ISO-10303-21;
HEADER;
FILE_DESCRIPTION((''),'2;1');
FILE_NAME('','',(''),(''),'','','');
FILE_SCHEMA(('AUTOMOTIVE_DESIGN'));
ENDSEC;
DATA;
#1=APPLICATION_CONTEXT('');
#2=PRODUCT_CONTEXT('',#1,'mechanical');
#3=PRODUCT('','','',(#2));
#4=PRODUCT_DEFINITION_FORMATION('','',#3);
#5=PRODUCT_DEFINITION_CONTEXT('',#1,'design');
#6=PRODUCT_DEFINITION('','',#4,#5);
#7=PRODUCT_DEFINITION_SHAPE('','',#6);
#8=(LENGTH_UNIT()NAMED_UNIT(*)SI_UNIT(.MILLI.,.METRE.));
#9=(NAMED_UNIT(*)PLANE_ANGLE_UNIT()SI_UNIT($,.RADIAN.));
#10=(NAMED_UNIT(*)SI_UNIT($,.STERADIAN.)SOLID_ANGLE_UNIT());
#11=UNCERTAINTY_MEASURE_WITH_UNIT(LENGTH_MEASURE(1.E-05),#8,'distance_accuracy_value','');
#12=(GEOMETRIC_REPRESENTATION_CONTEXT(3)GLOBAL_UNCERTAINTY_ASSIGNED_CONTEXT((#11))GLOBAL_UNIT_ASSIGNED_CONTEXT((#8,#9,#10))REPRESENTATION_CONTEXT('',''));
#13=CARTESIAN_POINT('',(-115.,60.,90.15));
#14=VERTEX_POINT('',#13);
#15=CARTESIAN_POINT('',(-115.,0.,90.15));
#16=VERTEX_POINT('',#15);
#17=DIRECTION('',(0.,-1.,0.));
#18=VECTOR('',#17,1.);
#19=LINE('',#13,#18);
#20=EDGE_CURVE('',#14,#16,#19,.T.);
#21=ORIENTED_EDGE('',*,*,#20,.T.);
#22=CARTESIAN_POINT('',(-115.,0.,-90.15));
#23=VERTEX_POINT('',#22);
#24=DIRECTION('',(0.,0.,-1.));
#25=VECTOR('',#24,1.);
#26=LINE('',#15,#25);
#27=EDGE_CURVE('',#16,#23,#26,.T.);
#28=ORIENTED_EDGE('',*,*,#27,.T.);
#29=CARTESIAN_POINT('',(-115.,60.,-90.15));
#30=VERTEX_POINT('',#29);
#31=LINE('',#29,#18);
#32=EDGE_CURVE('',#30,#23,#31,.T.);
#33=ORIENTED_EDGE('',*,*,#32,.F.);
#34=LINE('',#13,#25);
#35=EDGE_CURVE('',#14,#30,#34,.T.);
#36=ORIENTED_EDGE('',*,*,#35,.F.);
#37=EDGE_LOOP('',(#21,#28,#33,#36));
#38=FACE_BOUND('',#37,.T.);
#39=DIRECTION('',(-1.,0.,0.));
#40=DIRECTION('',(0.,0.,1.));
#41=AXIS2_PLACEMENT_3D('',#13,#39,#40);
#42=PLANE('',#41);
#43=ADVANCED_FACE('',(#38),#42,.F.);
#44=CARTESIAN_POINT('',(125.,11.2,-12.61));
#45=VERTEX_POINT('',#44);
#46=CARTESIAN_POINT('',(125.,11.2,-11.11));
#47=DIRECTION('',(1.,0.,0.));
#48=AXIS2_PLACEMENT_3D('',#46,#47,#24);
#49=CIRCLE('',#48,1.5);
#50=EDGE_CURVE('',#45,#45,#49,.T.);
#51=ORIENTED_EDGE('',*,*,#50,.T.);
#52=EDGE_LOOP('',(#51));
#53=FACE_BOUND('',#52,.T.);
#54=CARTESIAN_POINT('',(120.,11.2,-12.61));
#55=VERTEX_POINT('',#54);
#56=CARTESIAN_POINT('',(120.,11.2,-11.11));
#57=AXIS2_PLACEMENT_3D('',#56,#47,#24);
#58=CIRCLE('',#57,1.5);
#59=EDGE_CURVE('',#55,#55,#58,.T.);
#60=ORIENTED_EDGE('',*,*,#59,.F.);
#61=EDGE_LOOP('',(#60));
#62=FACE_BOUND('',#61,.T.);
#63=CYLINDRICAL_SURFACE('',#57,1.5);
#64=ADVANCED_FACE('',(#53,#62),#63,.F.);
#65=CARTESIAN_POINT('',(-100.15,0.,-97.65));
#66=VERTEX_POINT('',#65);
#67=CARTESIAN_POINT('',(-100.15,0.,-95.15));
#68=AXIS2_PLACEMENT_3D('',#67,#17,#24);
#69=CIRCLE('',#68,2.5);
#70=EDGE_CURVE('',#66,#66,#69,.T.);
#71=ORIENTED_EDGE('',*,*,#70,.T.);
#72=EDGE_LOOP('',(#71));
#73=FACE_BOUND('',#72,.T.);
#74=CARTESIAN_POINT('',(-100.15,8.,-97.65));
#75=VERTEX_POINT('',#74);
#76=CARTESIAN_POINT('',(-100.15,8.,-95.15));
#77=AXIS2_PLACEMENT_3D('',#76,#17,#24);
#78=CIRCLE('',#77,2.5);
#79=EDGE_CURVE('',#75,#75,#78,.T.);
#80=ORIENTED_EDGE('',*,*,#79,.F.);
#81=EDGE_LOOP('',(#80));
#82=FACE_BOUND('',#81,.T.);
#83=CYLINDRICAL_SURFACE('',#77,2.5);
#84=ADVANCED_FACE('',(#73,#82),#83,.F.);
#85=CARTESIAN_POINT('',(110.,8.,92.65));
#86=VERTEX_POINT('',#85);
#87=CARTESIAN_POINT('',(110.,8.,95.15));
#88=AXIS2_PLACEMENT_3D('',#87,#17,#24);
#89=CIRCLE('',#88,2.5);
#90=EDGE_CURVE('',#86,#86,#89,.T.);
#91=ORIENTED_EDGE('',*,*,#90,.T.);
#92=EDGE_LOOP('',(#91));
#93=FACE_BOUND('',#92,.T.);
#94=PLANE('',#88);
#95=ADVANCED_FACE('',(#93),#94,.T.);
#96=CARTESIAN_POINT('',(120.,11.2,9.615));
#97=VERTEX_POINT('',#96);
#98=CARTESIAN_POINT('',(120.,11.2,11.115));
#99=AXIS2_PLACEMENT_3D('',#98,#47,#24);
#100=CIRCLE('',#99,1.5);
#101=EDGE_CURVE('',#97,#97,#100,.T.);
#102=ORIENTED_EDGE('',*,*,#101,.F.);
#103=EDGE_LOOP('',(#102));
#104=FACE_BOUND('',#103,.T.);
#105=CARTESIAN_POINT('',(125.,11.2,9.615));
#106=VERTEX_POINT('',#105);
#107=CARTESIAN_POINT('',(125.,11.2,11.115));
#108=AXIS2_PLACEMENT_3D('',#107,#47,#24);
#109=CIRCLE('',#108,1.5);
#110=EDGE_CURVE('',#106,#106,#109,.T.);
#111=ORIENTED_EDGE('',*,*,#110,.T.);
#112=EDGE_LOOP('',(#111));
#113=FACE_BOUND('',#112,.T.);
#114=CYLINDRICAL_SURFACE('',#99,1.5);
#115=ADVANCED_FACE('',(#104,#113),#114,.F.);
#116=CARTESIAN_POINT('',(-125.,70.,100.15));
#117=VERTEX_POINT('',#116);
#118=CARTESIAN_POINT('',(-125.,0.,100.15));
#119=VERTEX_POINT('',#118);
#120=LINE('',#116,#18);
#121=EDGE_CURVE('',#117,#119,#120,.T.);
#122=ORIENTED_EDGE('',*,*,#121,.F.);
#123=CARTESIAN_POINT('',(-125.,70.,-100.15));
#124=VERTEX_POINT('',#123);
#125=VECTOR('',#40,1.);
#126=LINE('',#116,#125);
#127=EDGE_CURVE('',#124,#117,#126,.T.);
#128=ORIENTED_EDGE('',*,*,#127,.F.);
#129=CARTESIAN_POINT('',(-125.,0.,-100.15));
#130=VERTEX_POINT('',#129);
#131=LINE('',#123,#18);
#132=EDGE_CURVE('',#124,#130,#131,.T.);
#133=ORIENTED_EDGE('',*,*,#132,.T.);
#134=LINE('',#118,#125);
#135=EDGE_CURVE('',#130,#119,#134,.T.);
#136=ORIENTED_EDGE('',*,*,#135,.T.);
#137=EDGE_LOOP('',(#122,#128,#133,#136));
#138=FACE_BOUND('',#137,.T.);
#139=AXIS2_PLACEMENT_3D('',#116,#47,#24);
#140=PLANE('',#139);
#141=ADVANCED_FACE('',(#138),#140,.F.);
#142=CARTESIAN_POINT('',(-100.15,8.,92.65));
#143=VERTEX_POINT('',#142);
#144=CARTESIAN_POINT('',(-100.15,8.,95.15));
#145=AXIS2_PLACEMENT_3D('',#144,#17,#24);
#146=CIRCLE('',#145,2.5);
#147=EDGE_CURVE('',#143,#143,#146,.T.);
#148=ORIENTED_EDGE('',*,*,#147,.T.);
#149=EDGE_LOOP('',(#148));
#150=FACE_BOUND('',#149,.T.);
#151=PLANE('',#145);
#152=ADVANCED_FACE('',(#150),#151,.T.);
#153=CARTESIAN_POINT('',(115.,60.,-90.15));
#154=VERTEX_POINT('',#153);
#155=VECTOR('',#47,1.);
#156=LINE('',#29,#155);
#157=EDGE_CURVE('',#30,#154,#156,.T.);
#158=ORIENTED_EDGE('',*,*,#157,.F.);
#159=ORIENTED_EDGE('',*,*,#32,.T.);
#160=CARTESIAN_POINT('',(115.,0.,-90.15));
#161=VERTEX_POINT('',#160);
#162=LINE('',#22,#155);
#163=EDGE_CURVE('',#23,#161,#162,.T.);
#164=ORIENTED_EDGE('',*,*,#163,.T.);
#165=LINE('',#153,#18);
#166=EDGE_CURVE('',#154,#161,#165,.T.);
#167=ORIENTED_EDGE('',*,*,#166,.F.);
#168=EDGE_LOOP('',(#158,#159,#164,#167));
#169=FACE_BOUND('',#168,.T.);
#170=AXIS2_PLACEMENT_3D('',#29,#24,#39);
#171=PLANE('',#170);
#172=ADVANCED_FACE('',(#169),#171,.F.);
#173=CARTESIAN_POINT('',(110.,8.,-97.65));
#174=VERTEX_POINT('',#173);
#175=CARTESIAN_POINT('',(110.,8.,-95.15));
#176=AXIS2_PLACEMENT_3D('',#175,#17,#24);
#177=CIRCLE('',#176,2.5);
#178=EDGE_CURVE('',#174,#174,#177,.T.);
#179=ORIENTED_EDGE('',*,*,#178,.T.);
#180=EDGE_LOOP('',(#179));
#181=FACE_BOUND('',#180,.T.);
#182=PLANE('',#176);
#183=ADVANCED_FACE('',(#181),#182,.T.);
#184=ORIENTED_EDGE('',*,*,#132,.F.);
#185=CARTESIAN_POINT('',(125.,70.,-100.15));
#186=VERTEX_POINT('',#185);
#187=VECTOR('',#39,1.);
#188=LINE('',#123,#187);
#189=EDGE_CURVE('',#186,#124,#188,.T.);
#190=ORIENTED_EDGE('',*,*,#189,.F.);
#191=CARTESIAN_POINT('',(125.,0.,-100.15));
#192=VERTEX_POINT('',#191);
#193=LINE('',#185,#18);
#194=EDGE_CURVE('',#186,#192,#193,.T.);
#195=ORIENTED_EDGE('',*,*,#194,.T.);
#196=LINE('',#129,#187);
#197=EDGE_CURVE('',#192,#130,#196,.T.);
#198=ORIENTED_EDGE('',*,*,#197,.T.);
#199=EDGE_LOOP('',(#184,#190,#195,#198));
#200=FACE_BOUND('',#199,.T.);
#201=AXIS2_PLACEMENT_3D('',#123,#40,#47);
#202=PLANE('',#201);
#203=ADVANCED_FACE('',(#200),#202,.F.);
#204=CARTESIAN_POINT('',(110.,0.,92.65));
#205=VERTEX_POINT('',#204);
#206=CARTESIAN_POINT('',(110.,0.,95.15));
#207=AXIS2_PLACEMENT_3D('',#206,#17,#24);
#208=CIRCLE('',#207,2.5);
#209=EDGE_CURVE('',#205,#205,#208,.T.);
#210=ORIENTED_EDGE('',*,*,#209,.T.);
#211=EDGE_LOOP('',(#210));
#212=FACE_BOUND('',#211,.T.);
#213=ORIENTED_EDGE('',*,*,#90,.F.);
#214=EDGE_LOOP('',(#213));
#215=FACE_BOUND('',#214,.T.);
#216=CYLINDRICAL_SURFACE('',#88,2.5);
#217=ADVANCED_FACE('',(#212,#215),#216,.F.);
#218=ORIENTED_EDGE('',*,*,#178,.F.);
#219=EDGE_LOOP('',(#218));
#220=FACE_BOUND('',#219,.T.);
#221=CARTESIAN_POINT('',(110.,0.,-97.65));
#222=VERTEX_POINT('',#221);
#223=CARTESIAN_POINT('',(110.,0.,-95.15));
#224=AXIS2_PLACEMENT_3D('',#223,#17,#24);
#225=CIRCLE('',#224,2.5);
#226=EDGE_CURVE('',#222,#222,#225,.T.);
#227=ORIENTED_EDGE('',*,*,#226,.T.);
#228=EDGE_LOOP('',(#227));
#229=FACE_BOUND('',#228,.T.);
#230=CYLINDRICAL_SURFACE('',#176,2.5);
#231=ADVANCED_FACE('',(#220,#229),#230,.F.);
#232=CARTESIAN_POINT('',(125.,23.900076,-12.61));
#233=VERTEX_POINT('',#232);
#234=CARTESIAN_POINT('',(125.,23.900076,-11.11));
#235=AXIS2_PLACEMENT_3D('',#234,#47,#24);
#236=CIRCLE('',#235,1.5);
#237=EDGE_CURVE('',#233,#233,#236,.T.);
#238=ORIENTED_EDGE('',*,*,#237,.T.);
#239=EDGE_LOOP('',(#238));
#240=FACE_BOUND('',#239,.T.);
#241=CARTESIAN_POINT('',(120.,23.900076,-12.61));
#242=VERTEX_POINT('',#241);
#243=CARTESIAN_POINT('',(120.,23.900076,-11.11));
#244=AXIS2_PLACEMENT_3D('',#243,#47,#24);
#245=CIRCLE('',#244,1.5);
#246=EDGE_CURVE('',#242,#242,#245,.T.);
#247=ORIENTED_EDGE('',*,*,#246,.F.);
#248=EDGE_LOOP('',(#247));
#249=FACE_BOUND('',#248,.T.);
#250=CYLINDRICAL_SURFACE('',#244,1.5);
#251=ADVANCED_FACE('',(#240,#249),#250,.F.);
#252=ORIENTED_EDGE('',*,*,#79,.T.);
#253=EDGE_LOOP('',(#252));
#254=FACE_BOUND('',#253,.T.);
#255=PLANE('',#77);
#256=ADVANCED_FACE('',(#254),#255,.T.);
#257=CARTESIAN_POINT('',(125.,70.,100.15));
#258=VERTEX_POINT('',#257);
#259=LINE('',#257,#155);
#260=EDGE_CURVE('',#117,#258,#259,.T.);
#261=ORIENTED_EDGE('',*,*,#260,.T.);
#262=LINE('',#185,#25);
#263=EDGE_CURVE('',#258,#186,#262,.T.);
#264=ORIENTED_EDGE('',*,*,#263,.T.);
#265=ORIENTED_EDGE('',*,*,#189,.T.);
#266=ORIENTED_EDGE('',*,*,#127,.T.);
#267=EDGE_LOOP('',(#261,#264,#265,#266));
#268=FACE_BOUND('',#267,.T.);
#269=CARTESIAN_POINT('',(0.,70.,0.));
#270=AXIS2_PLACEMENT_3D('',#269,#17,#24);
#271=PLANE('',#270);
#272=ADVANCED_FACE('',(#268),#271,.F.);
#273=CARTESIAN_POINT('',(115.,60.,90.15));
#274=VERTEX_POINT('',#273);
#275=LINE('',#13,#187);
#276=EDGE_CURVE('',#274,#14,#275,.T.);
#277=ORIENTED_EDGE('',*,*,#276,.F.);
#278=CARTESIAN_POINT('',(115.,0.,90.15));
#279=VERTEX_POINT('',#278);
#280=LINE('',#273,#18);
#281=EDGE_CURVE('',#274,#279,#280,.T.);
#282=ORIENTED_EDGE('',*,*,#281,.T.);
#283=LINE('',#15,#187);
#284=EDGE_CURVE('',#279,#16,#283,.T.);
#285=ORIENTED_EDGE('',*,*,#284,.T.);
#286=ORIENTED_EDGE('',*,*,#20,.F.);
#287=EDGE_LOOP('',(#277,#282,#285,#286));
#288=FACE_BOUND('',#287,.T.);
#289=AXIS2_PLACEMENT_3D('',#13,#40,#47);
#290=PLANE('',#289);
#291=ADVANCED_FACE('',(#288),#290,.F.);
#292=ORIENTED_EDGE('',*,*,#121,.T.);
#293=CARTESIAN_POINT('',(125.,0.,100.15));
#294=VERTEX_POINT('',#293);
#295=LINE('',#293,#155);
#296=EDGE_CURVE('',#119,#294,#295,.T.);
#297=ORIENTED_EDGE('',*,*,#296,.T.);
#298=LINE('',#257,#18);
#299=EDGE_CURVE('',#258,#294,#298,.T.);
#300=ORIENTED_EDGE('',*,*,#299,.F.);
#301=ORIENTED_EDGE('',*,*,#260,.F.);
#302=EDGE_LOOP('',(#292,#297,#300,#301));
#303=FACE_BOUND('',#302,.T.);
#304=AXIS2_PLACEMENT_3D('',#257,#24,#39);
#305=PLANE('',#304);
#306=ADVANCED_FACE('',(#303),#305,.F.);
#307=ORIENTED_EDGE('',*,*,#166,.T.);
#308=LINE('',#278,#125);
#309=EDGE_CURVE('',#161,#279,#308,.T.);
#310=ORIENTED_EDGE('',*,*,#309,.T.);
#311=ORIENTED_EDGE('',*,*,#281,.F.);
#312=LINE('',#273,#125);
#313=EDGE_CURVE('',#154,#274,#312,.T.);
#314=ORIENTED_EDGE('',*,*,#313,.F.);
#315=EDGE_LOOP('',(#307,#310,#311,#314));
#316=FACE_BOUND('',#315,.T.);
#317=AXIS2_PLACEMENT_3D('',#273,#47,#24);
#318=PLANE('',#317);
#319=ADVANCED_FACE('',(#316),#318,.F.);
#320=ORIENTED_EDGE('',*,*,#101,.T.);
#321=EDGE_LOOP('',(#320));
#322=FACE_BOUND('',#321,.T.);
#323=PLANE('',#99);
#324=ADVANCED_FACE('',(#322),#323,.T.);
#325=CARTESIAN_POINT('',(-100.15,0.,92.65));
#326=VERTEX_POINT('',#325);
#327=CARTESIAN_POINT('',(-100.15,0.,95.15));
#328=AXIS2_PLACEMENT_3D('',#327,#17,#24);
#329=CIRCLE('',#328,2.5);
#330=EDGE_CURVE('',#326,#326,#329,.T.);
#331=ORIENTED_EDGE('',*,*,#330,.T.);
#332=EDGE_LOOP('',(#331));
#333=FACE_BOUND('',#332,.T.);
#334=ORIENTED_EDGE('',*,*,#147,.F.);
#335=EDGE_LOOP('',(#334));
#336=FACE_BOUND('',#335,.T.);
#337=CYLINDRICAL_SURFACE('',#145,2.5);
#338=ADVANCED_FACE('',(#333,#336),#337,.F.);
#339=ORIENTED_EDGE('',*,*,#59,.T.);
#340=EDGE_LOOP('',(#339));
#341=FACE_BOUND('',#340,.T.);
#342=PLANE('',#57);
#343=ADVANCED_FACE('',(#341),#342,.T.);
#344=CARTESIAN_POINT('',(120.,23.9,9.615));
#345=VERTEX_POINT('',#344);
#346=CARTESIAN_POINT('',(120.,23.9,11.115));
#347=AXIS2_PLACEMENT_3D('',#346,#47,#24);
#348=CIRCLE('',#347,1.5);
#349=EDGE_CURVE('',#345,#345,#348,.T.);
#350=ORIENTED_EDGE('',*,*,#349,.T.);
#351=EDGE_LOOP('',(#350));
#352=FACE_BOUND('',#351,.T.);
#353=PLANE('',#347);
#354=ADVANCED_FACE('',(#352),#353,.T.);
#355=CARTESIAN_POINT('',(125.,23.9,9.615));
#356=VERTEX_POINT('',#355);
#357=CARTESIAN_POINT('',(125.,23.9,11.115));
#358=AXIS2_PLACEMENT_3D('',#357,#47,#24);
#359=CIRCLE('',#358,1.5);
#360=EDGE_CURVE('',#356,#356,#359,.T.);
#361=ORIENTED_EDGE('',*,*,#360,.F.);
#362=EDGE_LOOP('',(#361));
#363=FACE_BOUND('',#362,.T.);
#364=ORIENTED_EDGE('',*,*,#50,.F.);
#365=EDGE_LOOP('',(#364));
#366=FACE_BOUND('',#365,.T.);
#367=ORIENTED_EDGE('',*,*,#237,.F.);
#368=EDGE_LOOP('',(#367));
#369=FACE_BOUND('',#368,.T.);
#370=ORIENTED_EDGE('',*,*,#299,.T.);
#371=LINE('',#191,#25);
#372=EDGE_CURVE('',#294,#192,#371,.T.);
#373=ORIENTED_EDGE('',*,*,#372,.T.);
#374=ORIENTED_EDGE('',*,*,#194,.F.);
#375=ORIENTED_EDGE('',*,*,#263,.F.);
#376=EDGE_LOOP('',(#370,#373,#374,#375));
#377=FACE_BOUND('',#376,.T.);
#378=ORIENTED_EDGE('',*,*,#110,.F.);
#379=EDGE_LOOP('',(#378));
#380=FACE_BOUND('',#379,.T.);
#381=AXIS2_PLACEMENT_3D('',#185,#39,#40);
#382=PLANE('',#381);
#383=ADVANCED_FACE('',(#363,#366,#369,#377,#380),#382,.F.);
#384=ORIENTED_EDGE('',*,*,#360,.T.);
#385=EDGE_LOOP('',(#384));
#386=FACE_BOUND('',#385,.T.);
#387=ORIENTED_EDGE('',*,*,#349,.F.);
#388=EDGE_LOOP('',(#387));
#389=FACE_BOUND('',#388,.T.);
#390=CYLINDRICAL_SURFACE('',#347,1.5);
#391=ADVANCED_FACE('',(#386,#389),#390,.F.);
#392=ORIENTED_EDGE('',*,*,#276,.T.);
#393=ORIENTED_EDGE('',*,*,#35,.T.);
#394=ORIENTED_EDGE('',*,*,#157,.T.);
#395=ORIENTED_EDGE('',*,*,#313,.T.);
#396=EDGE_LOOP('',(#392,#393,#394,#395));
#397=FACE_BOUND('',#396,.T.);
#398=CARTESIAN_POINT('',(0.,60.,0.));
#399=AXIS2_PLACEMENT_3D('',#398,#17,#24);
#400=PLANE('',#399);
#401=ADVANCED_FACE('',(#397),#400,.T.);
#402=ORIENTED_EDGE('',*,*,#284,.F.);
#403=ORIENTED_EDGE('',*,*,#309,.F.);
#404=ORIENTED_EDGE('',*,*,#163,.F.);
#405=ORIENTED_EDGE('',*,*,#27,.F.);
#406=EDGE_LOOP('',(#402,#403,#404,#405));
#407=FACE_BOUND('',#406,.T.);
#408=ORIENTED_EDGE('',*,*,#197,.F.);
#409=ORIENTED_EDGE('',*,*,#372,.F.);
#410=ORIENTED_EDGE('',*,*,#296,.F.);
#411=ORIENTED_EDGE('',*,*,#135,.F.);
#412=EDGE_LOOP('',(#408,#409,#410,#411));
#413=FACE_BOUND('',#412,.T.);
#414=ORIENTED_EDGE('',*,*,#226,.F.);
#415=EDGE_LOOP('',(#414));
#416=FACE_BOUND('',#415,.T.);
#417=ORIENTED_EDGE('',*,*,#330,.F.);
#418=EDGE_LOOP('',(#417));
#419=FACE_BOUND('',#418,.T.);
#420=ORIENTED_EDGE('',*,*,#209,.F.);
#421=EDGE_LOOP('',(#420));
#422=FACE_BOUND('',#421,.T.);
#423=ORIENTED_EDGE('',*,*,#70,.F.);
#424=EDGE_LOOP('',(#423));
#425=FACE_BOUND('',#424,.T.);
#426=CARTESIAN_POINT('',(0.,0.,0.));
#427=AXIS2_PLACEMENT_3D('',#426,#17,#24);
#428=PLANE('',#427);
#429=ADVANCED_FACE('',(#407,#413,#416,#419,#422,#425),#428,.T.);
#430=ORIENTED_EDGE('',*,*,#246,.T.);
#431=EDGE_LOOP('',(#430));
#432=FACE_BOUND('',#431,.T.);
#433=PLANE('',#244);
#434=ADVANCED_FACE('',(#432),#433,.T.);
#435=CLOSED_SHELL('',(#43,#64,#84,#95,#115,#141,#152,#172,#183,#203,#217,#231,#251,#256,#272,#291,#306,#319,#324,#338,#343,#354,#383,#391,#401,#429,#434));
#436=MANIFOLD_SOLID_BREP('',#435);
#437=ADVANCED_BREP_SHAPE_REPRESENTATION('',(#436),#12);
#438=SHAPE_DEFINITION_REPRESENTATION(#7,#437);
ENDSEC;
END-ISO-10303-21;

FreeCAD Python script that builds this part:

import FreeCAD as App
import Part
import Sketcher
Q = App.Units.Quantity


def add_polygon(sketch, points):
    """Adds a closed chain of lines whose ends are joined by coincident constraints."""
    first, n = sketch.GeometryCount, len(points)
    for a, b in zip(points, points[1:] + points[:1]):
        sketch.addGeometry(Part.LineSegment(App.Vector(*a, 0), App.Vector(*b, 0)), False)
    for i in range(n):
        sketch.addConstraint(Sketcher.Constraint("Coincident", first + i, 2, first + (i + 1) % n, 1))

doc = App.newDocument("Part")
params = doc.addObject("Spreadsheet::Sheet", "Params")
for row, (alias, value) in enumerate([
    ("sketch1_width", "250 mm"),
    ("sketch1_height", "200.3 mm"),
    ("pad1_length", "70 mm"),
    ("sketch2_width", "230 mm"),
    ("sketch2_height", "180.3 mm"),
    ("pocket1_length", "60 mm"),
    ("sketch3_diameter", "3 mm"),
    ("pocket2_length", "5 mm"),
    ("sketch4_diameter", "5 mm"),
    ("pocket3_length", "8 mm"),
], start=1):
    params.set(f"A{row}", alias)
    params.set(f"B{row}", "=" + value)
    params.setAlias(f"B{row}", alias)

body = doc.addObject("PartDesign::Body", "Body")

sketch1 = doc.addObject("Sketcher::SketchObject", "Sketch")
body.addObject(sketch1)
sketch1.AttachmentSupport = (doc.XZ_Plane, [""])
sketch1.MapMode = "FlatFace"
add_polygon(sketch1, [(-125, -100.15), (-125, 100.15), (125, 100.15), (125, -100.15)])
sketch1.addConstraint([
    Sketcher.Constraint("Vertical", 0),
    Sketcher.Constraint("Horizontal", 1),
    Sketcher.Constraint("Vertical", 2),
    Sketcher.Constraint("Horizontal", 3),
    Sketcher.Constraint("Symmetric", 0, 2, 2, 2, -1, 1),
    Sketcher.Constraint("DistanceX", 1, 1, 1, 2, Q("250 mm")),
    Sketcher.Constraint("DistanceY", 0, 1, 0, 2, Q("200.3 mm")),
])
sketch1.setExpression("Constraints[9]", "Params.sketch1_width")
sketch1.setExpression("Constraints[10]", "Params.sketch1_height")
pad1 = doc.addObject("PartDesign::Pad", "Pad")
body.addObject(pad1)
pad1.Profile = sketch1
pad1.setExpression("Length", "Params.pad1_length")
pad1.Reversed = True

sketch2 = doc.addObject("Sketcher::SketchObject", "Sketch001")
body.addObject(sketch2)
sketch2.AttachmentSupport = (doc.XZ_Plane, [""])
sketch2.MapMode = "FlatFace"
add_polygon(sketch2, [(-115, 90.15), (-115, -90.15), (115, -90.15), (115, 90.15)])
sketch2.addConstraint([
    Sketcher.Constraint("Vertical", 0),
    Sketcher.Constraint("Horizontal", 1),
    Sketcher.Constraint("Vertical", 2),
    Sketcher.Constraint("Horizontal", 3),
    Sketcher.Constraint("Symmetric", 0, 2, 2, 2, -1, 1),
    Sketcher.Constraint("DistanceX", 1, 1, 1, 2, Q("230 mm")),
    Sketcher.Constraint("DistanceY", 0, 2, 0, 1, Q("180.3 mm")),
])
sketch2.setExpression("Constraints[9]", "Params.sketch2_width")
sketch2.setExpression("Constraints[10]", "Params.sketch2_height")
pocket1 = doc.addObject("PartDesign::Pocket", "Pocket")
body.addObject(pocket1)
pocket1.Profile = sketch2
pocket1.setExpression("Length", "Params.pocket1_length")

sketch3 = doc.addObject("Sketcher::SketchObject", "Sketch002")
body.addObject(sketch3)
sketch3.AttachmentSupport = (doc.YZ_Plane, [""])
sketch3.MapMode = "FlatFace"
sketch3.AttachmentOffset = App.Placement(App.Vector(0, 0, 125), App.Rotation())
sketch3.addGeometry([
    Part.Circle(App.Vector(23.9, 11.115, 0), App.Vector(0, 0, 1), 1.5),
    Part.Circle(App.Vector(23.900076, -11.11, 0), App.Vector(0, 0, 1), 1.5),
    Part.Circle(App.Vector(11.2, 11.115, 0), App.Vector(0, 0, 1), 1.5),
    Part.Circle(App.Vector(11.2, -11.11, 0), App.Vector(0, 0, 1), 1.5),
], False)
sketch3.addConstraint([
    Sketcher.Constraint("Equal", 0, 1),
    Sketcher.Constraint("Equal", 1, 2),
    Sketcher.Constraint("Equal", 2, 3),
    Sketcher.Constraint("Horizontal", 0, 3, 2, 3),
    Sketcher.Constraint("Horizontal", 1, 3, 3, 3),
    Sketcher.Constraint("Vertical", 2, 3, 3, 3),
    Sketcher.Constraint("Diameter", 0, Q("3 mm")),
    Sketcher.Constraint("DistanceX", -1, 1, 0, 3, Q("23.9 mm")),
    Sketcher.Constraint("DistanceX", -1, 1, 2, 3, Q("11.2 mm")),
    Sketcher.Constraint("DistanceY", 1, 3, -1, 1, Q("11.11 mm")),
    Sketcher.Constraint("DistanceY", -1, 1, 0, 3, Q("11.115 mm")),
    Sketcher.Constraint("DistanceX", -1, 1, 1, 3, Q("23.900076 mm")),
])
sketch3.setExpression("Constraints[6]", "Params.sketch3_diameter")
pocket2 = doc.addObject("PartDesign::Pocket", "Pocket001")
body.addObject(pocket2)
pocket2.Profile = sketch3
pocket2.setExpression("Length", "Params.pocket2_length")

sketch4 = doc.addObject("Sketcher::SketchObject", "Sketch003")
body.addObject(sketch4)
sketch4.AttachmentSupport = (doc.XZ_Plane, [""])
sketch4.MapMode = "FlatFace"
sketch4.addGeometry([
    Part.Circle(App.Vector(-100.15, 95.15, 0), App.Vector(0, 0, 1), 2.5),
    Part.Circle(App.Vector(-100.15, -95.15, 0), App.Vector(0, 0, 1), 2.5),
    Part.Circle(App.Vector(110, -95.15, 0), App.Vector(0, 0, 1), 2.5),
    Part.Circle(App.Vector(110, 95.15, 0), App.Vector(0, 0, 1), 2.5),
], False)
sketch4.addConstraint([
    Sketcher.Constraint("Equal", 0, 1),
    Sketcher.Constraint("Equal", 1, 2),
    Sketcher.Constraint("Equal", 2, 3),
    Sketcher.Constraint("Symmetric", 0, 3, 1, 3, -1),
    Sketcher.Constraint("Symmetric", 2, 3, 3, 3, -1),
    Sketcher.Constraint("Horizontal", 1, 3, 2, 3),
    Sketcher.Constraint("Diameter", 0, Q("5 mm")),
    Sketcher.Constraint("DistanceX", -1, 1, 2, 3, Q("110 mm")),
    Sketcher.Constraint("DistanceY", 1, 3, 0, 3, Q("190.3 mm")),
    Sketcher.Constraint("DistanceX", 0, 3, -1, 1, Q("100.15 mm")),
])
sketch4.setExpression("Constraints[6]", "Params.sketch4_diameter")
pocket3 = doc.addObject("PartDesign::Pocket", "Pocket002")
body.addObject(pocket3)
pocket3.Profile = sketch4
pocket3.setExpression("Length", "Params.pocket3_length")

doc.recompute()
